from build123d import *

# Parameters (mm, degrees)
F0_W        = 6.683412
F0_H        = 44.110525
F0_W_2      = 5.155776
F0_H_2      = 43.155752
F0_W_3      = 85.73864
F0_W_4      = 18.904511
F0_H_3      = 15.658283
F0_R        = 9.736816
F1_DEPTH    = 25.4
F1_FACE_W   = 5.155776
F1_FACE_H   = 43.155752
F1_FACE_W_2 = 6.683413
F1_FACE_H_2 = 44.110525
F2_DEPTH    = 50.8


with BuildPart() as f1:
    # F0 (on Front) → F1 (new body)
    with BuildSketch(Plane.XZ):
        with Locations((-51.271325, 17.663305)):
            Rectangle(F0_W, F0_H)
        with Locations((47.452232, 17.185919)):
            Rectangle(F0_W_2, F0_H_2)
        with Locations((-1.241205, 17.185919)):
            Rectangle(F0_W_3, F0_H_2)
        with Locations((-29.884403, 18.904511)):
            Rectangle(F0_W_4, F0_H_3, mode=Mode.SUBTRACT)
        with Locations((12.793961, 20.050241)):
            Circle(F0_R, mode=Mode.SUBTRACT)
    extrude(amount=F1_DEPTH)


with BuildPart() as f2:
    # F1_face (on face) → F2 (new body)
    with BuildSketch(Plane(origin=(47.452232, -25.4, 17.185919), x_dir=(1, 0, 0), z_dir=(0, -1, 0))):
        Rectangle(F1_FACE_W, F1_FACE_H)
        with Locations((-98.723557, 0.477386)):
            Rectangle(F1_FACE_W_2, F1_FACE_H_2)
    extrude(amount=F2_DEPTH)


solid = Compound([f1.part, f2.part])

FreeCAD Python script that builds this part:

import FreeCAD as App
import Part
import Sketcher

V = App.Vector
Q = App.Units.Quantity

doc = App.newDocument("Part")
body = doc.addObject("PartDesign::Body", "Body")
body.AllowCompound = True

sketch1 = body.newObject("Sketcher::SketchObject", "Sketch")
sketch1.AttachmentSupport = (doc.getObject("XZ_Plane"), [""])
sketch1.MapMode = "FlatFace"
sketch1.addGeometry(Part.LineSegment(V(-55, 40, 0), V(-55, -4, 0)), False)
sketch1.addGeometry(Part.LineSegment(V(-55, -4, 0), V(-48, -4, 0)), False)
sketch1.addGeometry(Part.LineSegment(V(-48, -4, 0), V(-48, 40, 0)), False)
sketch1.addGeometry(Part.LineSegment(V(-48, 40, 0), V(-55, 40, 0)), False)
sketch1.addGeometry(Part.LineSegment(V(45, 39, 0), V(45, -4, 0)), False)
sketch1.addGeometry(Part.LineSegment(V(45, -4, 0), V(50, -4, 0)), False)
sketch1.addGeometry(Part.LineSegment(V(50, -4, 0), V(50, 39, 0)), False)
sketch1.addGeometry(Part.LineSegment(V(50, 39, 0), V(45, 39, 0)), False)
sketch1.addGeometry(Part.LineSegment(V(-44, 39, 0), V(-44, -4, 0)), False)
sketch1.addGeometry(Part.LineSegment(V(-44, -4, 0), V(42, -4, 0)), False)
sketch1.addGeometry(Part.LineSegment(V(42, -4, 0), V(42, 39, 0)), False)
sketch1.addGeometry(Part.LineSegment(V(42, 39, 0), V(-44, 39, 0)), False)
sketch1.addGeometry(Part.LineSegment(V(-20, 11, 0), V(-39, 11, 0)), False)
sketch1.addGeometry(Part.LineSegment(V(-39, 11, 0), V(-39, 27, 0)), False)
sketch1.addGeometry(Part.LineSegment(V(-39, 27, 0), V(-20, 27, 0)), False)
sketch1.addGeometry(Part.LineSegment(V(-20, 27, 0), V(-20, 11, 0)), False)
sketch1.addGeometry(Part.Circle(V(13, 20, 0), V(0, 0, 1), 10), False)
sketch1.addConstraint(Sketcher.Constraint("Coincident", 0, 2, 1, 1))
sketch1.addConstraint(Sketcher.Constraint("Coincident", 1, 2, 2, 1))
sketch1.addConstraint(Sketcher.Constraint("Coincident", 2, 2, 3, 1))
sketch1.addConstraint(Sketcher.Constraint("Coincident", 3, 2, 0, 1))
sketch1.addConstraint(Sketcher.Constraint("Coincident", 4, 2, 5, 1))
sketch1.addConstraint(Sketcher.Constraint("Coincident", 5, 2, 6, 1))
sketch1.addConstraint(Sketcher.Constraint("Coincident", 6, 2, 7, 1))
sketch1.addConstraint(Sketcher.Constraint("Coincident", 7, 2, 4, 1))
sketch1.addConstraint(Sketcher.Constraint("Coincident", 8, 2, 9, 1))
sketch1.addConstraint(Sketcher.Constraint("Coincident", 9, 2, 10, 1))
sketch1.addConstraint(Sketcher.Constraint("Coincident", 10, 2, 11, 1))
sketch1.addConstraint(Sketcher.Constraint("Coincident", 11, 2, 8, 1))
sketch1.addConstraint(Sketcher.Constraint("Coincident", 12, 2, 13, 1))
sketch1.addConstraint(Sketcher.Constraint("Coincident", 13, 2, 14, 1))
sketch1.addConstraint(Sketcher.Constraint("Coincident", 14, 2, 15, 1))
sketch1.addConstraint(Sketcher.Constraint("Coincident", 15, 2, 12, 1))
sketch1.addConstraint(Sketcher.Constraint("Vertical", 0))
sketch1.addConstraint(Sketcher.Constraint("Horizontal", 1))
sketch1.addConstraint(Sketcher.Constraint("Vertical", 2))
sketch1.addConstraint(Sketcher.Constraint("Horizontal", 3))
sketch1.addConstraint(Sketcher.Constraint("Vertical", 4))
sketch1.addConstraint(Sketcher.Constraint("Horizontal", 5))
sketch1.addConstraint(Sketcher.Constraint("Vertical", 6))
sketch1.addConstraint(Sketcher.Constraint("Horizontal", 7))
sketch1.addConstraint(Sketcher.Constraint("Vertical", 8))
sketch1.addConstraint(Sketcher.Constraint("Horizontal", 9))
sketch1.addConstraint(Sketcher.Constraint("Vertical", 10))
sketch1.addConstraint(Sketcher.Constraint("Horizontal", 11))
sketch1.addConstraint(Sketcher.Constraint("Horizontal", 12))
sketch1.addConstraint(Sketcher.Constraint("Vertical", 13))
sketch1.addConstraint(Sketcher.Constraint("Horizontal", 14))
sketch1.addConstraint(Sketcher.Constraint("Vertical", 15))
sketch1.addConstraint(Sketcher.Constraint("Horizontal", 1, 2, 4, 2))
sketch1.addConstraint(Sketcher.Constraint("Horizontal", 5, 2, 8, 2))
sketch1.addConstraint(Sketcher.Constraint("Horizontal", 7, 2, 10, 2))
sketch1.addConstraint(Sketcher.Constraint("Diameter", 16, 19.473632))
sketch1.addConstraint(Sketcher.Constraint("DistanceX", 1, 1, 1, 2, 6.683412))
sketch1.addConstraint(Sketcher.Constraint("DistanceX", 9, 1, 9, 2, 85.73864))
sketch1.addConstraint(Sketcher.Constraint("DistanceX", 12, 2, 12, 1, 18.904511))
sketch1.addConstraint(Sketcher.Constraint("DistanceY", 0, 2, 16, 3, 24.442198))
sketch1.addConstraint(Sketcher.Constraint("DistanceX", 5, 1, 5, 2, 5.155776))
sketch1.addConstraint(Sketcher.Constraint("DistanceY", 0, 2, 0, 1, 44.110525))
sketch1.addConstraint(Sketcher.Constraint("DistanceY", 4, 2, 4, 1, 43.155752))
sketch1.addConstraint(Sketcher.Constraint("DistanceY", 13, 1, 13, 2, 15.658283))
sketch1.addConstraint(Sketcher.Constraint("DistanceX", -1, 1, 16, 3, 12.793961))
sketch1.addConstraint(Sketcher.Constraint("DistanceY", -1, 1, 16, 3, 20.050241))
sketch1.addConstraint(Sketcher.Constraint("DistanceX", 0, 2, -1, 1, 54.613031))
sketch1.addConstraint(Sketcher.Constraint("DistanceX", -1, 1, 5, 2, 50.03012))
sketch1.addConstraint(Sketcher.Constraint("DistanceX", 12, 2, -1, 1, 39.336658))
sketch1.addConstraint(Sketcher.Constraint("DistanceY", -1, 1, 12, 2, 11.07537))
sketch1.addConstraint(Sketcher.Constraint("DistanceX", 9, 2, 4, 2, 3.246229))
pad1 = body.newObject("PartDesign::Pad", "Pad")
pad1.Profile = sketch1
pad1.Length = Q("1 in")
body2 = doc.addObject("PartDesign::Body", "Body001")
body2.AllowCompound = True

sketch2 = body2.newObject("Sketcher::SketchObject", "Sketch001")
sketch2.AttachmentSupport = (doc.getObject("XZ_Plane001"), [""])
sketch2.MapMode = "FlatFace"
sketch2.AttachmentOffset = App.Placement(V(0, 0, 1 * 25.4), App.Rotation())
sketch2.addGeometry(Part.LineSegment(V(45, 39, 0), V(45, -4, 0)), False)
sketch2.addGeometry(Part.LineSegment(V(45, -4, 0), V(50, -4, 0)), False)
sketch2.addGeometry(Part.LineSegment(V(50, -4, 0), V(50, 39, 0)), False)
sketch2.addGeometry(Part.LineSegment(V(50, 39, 0), V(45, 39, 0)), False)
sketch2.addGeometry(Part.LineSegment(V(-55, 40, 0), V(-55, -4, 0)), False)
sketch2.addGeometry(Part.LineSegment(V(-55, -4, 0), V(-48, -4, 0)), False)
sketch2.addGeometry(Part.LineSegment(V(-48, -4, 0), V(-48, 40, 0)), False)
sketch2.addGeometry(Part.LineSegment(V(-48, 40, 0), V(-55, 40, 0)), False)
sketch2.addConstraint(Sketcher.Constraint("Coincident", 0, 2, 1, 1))
sketch2.addConstraint(Sketcher.Constraint("Coincident", 1, 2, 2, 1))
sketch2.addConstraint(Sketcher.Constraint("Coincident", 2, 2, 3, 1))
sketch2.addConstraint(Sketcher.Constraint("Coincident", 3, 2, 0, 1))
sketch2.addConstraint(Sketcher.Constraint("Coincident", 4, 2, 5, 1))
sketch2.addConstraint(Sketcher.Constraint("Coincident", 5, 2, 6, 1))
sketch2.addConstraint(Sketcher.Constraint("Coincident", 6, 2, 7, 1))
sketch2.addConstraint(Sketcher.Constraint("Coincident", 7, 2, 4, 1))
sketch2.addConstraint(Sketcher.Constraint("Vertical", 0))
sketch2.addConstraint(Sketcher.Constraint("Horizontal", 1))
sketch2.addConstraint(Sketcher.Constraint("Vertical", 2))
sketch2.addConstraint(Sketcher.Constraint("Horizontal", 3))
sketch2.addConstraint(Sketcher.Constraint("Vertical", 4))
sketch2.addConstraint(Sketcher.Constraint("Horizontal", 5))
sketch2.addConstraint(Sketcher.Constraint("Vertical", 6))
sketch2.addConstraint(Sketcher.Constraint("Horizontal", 7))
sketch2.addConstraint(Sketcher.Constraint("Horizontal", 1, 2, 4, 2))
sketch2.addConstraint(Sketcher.Constraint("DistanceX", 1, 1, 1, 2, 5.155776))
sketch2.addConstraint(Sketcher.Constraint("DistanceX", 5, 1, 5, 2, 6.683413))
sketch2.addConstraint(Sketcher.Constraint("DistanceY", 0, 2, 0, 1, 43.155752))
sketch2.addConstraint(Sketcher.Constraint("DistanceY", 4, 2, 4, 1, 44.110525))
sketch2.addConstraint(Sketcher.Constraint("DistanceX", -1, 1, 1, 2, 50.03012))
sketch2.addConstraint(Sketcher.Constraint("DistanceX", 4, 2, -1, 1, 54.613031))
sketch2.addConstraint(Sketcher.Constraint("DistanceY", 0, 2, -1, 1, 4.391957))
pad2 = body2.newObject("PartDesign::Pad", "Pad001")
pad2.Profile = sketch2
pad2.Length = Q("2 in")

doc.recompute()
